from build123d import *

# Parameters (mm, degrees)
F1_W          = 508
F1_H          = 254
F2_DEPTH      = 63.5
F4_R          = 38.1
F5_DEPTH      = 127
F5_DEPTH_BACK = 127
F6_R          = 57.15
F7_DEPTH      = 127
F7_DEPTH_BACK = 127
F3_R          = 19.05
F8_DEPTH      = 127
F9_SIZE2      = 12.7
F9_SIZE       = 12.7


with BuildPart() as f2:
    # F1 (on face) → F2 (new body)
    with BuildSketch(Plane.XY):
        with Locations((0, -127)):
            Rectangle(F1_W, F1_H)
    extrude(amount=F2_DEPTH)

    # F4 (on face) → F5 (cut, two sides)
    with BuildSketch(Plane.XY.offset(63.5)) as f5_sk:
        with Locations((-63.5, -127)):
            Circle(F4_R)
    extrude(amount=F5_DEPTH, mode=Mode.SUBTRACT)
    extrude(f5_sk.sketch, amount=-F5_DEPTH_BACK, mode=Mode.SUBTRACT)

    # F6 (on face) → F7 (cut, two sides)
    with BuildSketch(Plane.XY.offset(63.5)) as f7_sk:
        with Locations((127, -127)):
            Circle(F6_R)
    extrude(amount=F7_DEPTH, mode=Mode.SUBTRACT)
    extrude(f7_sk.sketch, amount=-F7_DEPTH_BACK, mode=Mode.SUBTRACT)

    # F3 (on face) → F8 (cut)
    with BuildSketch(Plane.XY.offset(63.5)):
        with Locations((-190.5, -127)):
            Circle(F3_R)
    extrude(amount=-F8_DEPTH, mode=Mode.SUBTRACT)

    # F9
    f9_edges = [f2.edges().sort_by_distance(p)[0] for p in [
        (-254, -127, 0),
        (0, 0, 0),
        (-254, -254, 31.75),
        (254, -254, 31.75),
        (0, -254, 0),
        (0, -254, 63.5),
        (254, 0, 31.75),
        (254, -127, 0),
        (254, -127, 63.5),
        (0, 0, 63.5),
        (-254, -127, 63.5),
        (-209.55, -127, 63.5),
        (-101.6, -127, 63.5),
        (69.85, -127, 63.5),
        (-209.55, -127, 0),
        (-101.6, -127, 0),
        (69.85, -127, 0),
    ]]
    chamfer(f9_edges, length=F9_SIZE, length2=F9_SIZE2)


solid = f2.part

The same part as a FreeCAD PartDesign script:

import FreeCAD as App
import Part
import Sketcher
Q = App.Units.Quantity


def edges_at(feature, points):
    """Names of the edges that pass closest to the given points."""
    edges = feature.Shape.Edges
    near = lambda p: min(range(len(edges)), key=lambda i: edges[i].distToShape(Part.Vertex(*p))[0])
    return sorted({f"Edge{near(p) + 1}" for p in points})

doc = App.newDocument("Part")
body = doc.addObject("PartDesign::Body", "Body")

sketch1 = body.newObject("Sketcher::SketchObject", "Sketch")
sketch1.AttachmentSupport = (doc.getObject("XY_Plane"), [""])
sketch1.MapMode = "FlatFace"
sketch1.addGeometry(Part.LineSegment(App.Vector(-254, 0, 0), App.Vector(-254, -254, 0)), False)
sketch1.addGeometry(Part.LineSegment(App.Vector(-254, -254, 0), App.Vector(254, -254, 0)), False)
sketch1.addGeometry(Part.LineSegment(App.Vector(254, -254, 0), App.Vector(254, 0, 0)), False)
sketch1.addGeometry(Part.LineSegment(App.Vector(254, 0, 0), App.Vector(-254, 0, 0)), False)
sketch1.addConstraint(Sketcher.Constraint("Coincident", 0, 2, 1, 1))
sketch1.addConstraint(Sketcher.Constraint("Coincident", 1, 2, 2, 1))
sketch1.addConstraint(Sketcher.Constraint("Coincident", 2, 2, 3, 1))
sketch1.addConstraint(Sketcher.Constraint("Coincident", 3, 2, 0, 1))
sketch1.addConstraint(Sketcher.Constraint("Vertical", 0))
sketch1.addConstraint(Sketcher.Constraint("Horizontal", 1))
sketch1.addConstraint(Sketcher.Constraint("Vertical", 2))
sketch1.addConstraint(Sketcher.Constraint("Horizontal", 3))
sketch1.addConstraint(Sketcher.Constraint("Symmetric", 2, 2, 3, 2, -1, 1))
sketch1.addConstraint(Sketcher.Constraint("DistanceX", 1, 1, 1, 2, Q("20 in")))
sketch1.addConstraint(Sketcher.Constraint("DistanceY", 0, 2, 0, 1, Q("10 in")))
pad1 = body.newObject("PartDesign::Pad", "Pad")
pad1.Profile = sketch1
pad1.Length = Q("2.5 in")

sketch2 = body.newObject("Sketcher::SketchObject", "Sketch001")
sketch2.AttachmentSupport = (doc.getObject("XY_Plane"), [""])
sketch2.MapMode = "FlatFace"
sketch2.AttachmentOffset = App.Placement(App.Vector(0, 0, 2.5 * 25.4), App.Rotation())
sketch2.addGeometry(Part.Circle(App.Vector(-64, -127, 0), App.Vector(0, 0, 1), 38), False)
sketch2.addConstraint(Sketcher.Constraint("Diameter", 0, Q("3 in")))
sketch2.addConstraint(Sketcher.Constraint("DistanceY", 0, 3, -1, 1, Q("5 in")))
sketch2.addConstraint(Sketcher.Constraint("DistanceX", 0, 3, -1, 1, Q("2.5 in")))
pocket1 = body.newObject("PartDesign::Pocket", "Pocket")
pocket1.Profile = sketch2
pocket1.Type = "ThroughAll"
pocket1.Midplane = True

sketch3 = body.newObject("Sketcher::SketchObject", "Sketch002")
sketch3.AttachmentSupport = (doc.getObject("XY_Plane"), [""])
sketch3.MapMode = "FlatFace"
sketch3.AttachmentOffset = App.Placement(App.Vector(0, 0, 2.5 * 25.4), App.Rotation())
sketch3.addGeometry(Part.Circle(App.Vector(127, -127, 0), App.Vector(0, 0, 1), 57), False)
sketch3.addConstraint(Sketcher.Constraint("Diameter", 0, Q("4.5 in")))
sketch3.addConstraint(Sketcher.Constraint("DistanceX", -1, 1, 0, 3, Q("5 in")))
sketch3.addConstraint(Sketcher.Constraint("DistanceY", 0, 3, -1, 1, Q("5 in")))
pocket2 = body.newObject("PartDesign::Pocket", "Pocket001")
pocket2.Profile = sketch3
pocket2.Type = "ThroughAll"
pocket2.Midplane = True

sketch4 = body.newObject("Sketcher::SketchObject", "Sketch003")
sketch4.AttachmentSupport = (doc.getObject("XY_Plane"), [""])
sketch4.MapMode = "FlatFace"
sketch4.AttachmentOffset = App.Placement(App.Vector(0, 0, 2.5 * 25.4), App.Rotation())
sketch4.addGeometry(Part.Circle(App.Vector(-190, -127, 0), App.Vector(0, 0, 1), 19), False)
sketch4.addConstraint(Sketcher.Constraint("Diameter", 0, Q("1.5 in")))
sketch4.addConstraint(Sketcher.Constraint("DistanceY", 0, 3, -1, 1, Q("5 in")))
sketch4.addConstraint(Sketcher.Constraint("DistanceX", 0, 3, -1, 1, Q("7.5 in")))
pocket3 = body.newObject("PartDesign::Pocket", "Pocket002")
pocket3.Profile = sketch4
pocket3.Length = Q("5 in")
doc.recompute()

chamfer = body.newObject("PartDesign::Chamfer", "Chamfer")
chamfer.Base = (pocket3, edges_at(pocket3, [
    (-254, -127, 0),
    (0, 0, 0),
    (-254, -254, 31.75),
    (254, -254, 31.75),
    (0, -254, 0),
    (0, -254, 63.5),
    (254, 0, 31.75),
    (254, -127, 0),
    (254, -127, 63.5),
    (0, 0, 63.5),
    (-254, -127, 63.5),
    (-209.55, -127, 63.5),
    (-101.6, -127, 63.5),
    (69.85, -127, 63.5),
    (-209.55, -127, 0),
    (-101.6, -127, 0),
    (69.85, -127, 0),
]))
chamfer.ChamferType = "Two distances"
chamfer.Size = Q("0.5 in")
chamfer.Size2 = Q("0.5 in")

doc.recompute()
